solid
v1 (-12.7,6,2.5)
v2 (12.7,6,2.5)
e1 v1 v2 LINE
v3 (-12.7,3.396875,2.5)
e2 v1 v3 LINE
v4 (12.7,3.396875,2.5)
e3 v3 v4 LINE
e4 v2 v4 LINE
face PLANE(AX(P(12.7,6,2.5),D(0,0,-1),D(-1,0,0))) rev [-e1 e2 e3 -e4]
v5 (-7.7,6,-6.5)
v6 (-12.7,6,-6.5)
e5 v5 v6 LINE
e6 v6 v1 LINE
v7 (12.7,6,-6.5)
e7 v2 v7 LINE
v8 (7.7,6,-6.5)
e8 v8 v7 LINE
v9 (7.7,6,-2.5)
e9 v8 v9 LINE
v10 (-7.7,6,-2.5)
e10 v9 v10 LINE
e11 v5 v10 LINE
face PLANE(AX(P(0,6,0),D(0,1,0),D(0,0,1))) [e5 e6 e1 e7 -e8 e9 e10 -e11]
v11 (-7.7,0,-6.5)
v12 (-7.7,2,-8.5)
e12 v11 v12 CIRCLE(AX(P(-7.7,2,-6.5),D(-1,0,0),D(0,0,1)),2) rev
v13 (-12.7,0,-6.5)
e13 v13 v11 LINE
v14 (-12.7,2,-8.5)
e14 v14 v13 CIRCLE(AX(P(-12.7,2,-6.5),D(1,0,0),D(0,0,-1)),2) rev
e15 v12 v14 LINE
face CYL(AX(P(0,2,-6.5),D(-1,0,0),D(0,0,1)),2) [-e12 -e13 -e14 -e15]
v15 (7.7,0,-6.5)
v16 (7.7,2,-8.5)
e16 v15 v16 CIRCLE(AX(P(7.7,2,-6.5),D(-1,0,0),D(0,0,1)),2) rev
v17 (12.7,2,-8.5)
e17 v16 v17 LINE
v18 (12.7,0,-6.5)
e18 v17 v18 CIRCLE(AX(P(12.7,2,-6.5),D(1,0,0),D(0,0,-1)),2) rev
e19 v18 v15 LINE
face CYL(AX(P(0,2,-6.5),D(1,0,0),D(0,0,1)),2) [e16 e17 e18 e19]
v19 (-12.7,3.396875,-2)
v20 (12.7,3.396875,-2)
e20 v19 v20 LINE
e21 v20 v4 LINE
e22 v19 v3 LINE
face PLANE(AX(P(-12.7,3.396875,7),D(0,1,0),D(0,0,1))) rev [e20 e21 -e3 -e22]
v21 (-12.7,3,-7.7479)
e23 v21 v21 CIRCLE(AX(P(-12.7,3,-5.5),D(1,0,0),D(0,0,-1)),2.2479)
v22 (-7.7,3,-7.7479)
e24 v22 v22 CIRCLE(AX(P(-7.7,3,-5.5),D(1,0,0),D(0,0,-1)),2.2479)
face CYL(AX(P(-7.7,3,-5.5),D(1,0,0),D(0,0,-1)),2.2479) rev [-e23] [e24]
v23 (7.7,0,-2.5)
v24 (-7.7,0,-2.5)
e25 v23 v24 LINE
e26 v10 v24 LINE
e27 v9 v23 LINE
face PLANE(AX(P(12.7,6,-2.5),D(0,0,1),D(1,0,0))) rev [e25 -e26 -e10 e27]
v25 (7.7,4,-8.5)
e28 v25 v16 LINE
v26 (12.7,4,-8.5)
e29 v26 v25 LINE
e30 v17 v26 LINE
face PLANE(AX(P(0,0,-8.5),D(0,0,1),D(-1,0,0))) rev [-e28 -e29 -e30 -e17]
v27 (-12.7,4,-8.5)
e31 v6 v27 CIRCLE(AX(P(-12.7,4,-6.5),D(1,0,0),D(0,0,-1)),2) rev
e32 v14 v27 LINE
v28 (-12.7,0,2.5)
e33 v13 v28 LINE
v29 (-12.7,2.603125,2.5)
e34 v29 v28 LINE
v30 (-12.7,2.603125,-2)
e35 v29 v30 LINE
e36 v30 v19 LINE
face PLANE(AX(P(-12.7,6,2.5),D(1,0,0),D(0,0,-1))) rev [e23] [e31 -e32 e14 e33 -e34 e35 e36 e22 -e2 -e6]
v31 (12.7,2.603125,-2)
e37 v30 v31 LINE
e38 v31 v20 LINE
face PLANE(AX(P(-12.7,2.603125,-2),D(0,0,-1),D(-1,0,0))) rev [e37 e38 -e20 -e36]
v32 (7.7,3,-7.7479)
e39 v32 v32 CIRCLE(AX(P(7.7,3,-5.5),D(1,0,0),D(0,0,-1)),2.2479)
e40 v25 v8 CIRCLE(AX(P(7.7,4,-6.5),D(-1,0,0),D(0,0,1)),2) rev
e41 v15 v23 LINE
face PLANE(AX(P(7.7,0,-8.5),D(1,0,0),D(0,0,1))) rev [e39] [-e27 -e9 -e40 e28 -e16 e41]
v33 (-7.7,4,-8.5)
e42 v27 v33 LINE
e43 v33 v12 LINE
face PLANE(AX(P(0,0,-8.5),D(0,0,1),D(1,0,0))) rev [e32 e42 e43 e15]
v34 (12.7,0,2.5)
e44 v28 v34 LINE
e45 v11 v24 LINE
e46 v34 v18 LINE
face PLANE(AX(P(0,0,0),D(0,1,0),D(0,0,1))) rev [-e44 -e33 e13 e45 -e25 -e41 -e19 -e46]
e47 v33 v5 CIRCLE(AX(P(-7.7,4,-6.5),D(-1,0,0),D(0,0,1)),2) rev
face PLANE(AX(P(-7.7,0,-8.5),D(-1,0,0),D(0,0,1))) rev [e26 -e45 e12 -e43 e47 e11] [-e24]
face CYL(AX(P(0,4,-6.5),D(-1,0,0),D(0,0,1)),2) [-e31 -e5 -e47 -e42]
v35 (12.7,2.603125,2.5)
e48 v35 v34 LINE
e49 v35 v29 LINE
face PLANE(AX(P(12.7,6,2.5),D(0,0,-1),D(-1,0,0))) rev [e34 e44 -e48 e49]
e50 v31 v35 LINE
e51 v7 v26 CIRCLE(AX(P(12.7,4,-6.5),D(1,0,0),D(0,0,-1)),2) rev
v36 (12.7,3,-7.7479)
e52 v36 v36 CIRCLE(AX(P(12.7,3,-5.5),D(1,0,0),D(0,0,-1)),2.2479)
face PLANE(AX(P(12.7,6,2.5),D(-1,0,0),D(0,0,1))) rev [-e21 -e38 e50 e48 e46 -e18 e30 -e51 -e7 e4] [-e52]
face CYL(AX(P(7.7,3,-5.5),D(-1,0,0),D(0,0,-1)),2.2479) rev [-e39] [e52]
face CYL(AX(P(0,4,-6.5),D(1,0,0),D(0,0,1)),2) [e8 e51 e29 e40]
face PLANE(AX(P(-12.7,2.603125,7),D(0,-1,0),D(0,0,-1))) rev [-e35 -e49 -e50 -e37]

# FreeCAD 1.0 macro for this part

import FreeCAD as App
import Part
import Sketcher

V = App.Vector
Q = App.Units.Quantity


def edges_at(feature, points):
    """Names of the edges that pass closest to the given points."""
    edges = feature.Shape.Edges
    near = lambda p: min(range(len(edges)), key=lambda i: edges[i].distToShape(Part.Vertex(*p))[0])
    return sorted({f"Edge{near(p) + 1}" for p in points})

doc = App.newDocument("Part")
body = doc.addObject("PartDesign::Body", "Body")

# Sketch on XZ plane
sketch1 = body.newObject("Sketcher::SketchObject", "Sketch")
sketch1.AttachmentSupport = (doc.getObject("XZ_Plane"), [""])
sketch1.MapMode = "FlatFace"
sketch1.addGeometry([
    Part.LineSegment(V(-13, -2, 0), V(-13, 2, 0)),
    Part.LineSegment(V(-13, 2, 0), V(13, 2, 0)),
    Part.LineSegment(V(13, 2, 0), V(13, -2, 0)),
    Part.LineSegment(V(13, -2, 0), V(-13, -2, 0)),
], False)
sketch1.addConstraint([
    Sketcher.Constraint("Coincident", 0, 2, 1, 1),
    Sketcher.Constraint("Coincident", 1, 2, 2, 1),
    Sketcher.Constraint("Coincident", 2, 2, 3, 1),
    Sketcher.Constraint("Coincident", 3, 2, 0, 1),
    Sketcher.Constraint("Vertical", 0),
    Sketcher.Constraint("Horizontal", 1),
    Sketcher.Constraint("Vertical", 2),
    Sketcher.Constraint("Horizontal", 3),
    Sketcher.Constraint("Symmetric", 0, 2, 2, 2, -1, 1),
    Sketcher.Constraint("DistanceY", 0, 1, 0, 2, Q("5 mm")),
    Sketcher.Constraint("DistanceX", 1, 1, 1, 2, Q("25.4 mm")),
])
pad1 = body.newObject("PartDesign::Pad", "Pad")
pad1.Profile = sketch1
pad1.Length = 6
pad1.Reversed = True

# Sketch on YZ plane
sketch2 = body.newObject("Sketcher::SketchObject", "Sketch001")
sketch2.AttachmentSupport = (doc.getObject("YZ_Plane"), [""])
sketch2.MapMode = "FlatFace"
sketch2.AttachmentOffset = App.Placement(V(0, 0, 12.7), App.Rotation())
sketch2.addGeometry([
    Part.LineSegment(V(3.4, 7, 0), V(2.6, 7, 0)),
    Part.LineSegment(V(2.6, 7, 0), V(2.6, -2, 0)),
    Part.LineSegment(V(2.6, -2, 0), V(3.4, -2, 0)),
    Part.LineSegment(V(3.4, -2, 0), V(3.4, 7, 0)),
], False)
sketch2.addConstraint([
    Sketcher.Constraint("Coincident", 0, 2, 1, 1),
    Sketcher.Constraint("Coincident", 1, 2, 2, 1),
    Sketcher.Constraint("Coincident", 2, 2, 3, 1),
    Sketcher.Constraint("Coincident", 3, 2, 0, 1),
    Sketcher.Constraint("Horizontal", 0),
    Sketcher.Constraint("Vertical", 1),
    Sketcher.Constraint("Horizontal", 2),
    Sketcher.Constraint("Vertical", 3),
    Sketcher.Constraint("DistanceY", 1, 2, 1, 1, Q("9 mm")),
    Sketcher.Constraint("DistanceY", -1, 1, 0, 2, Q("7 mm")),
    Sketcher.Constraint("DistanceX", 0, 2, 0, 1, Q("0.79375 mm")),
    Sketcher.Constraint("DistanceX", -1, 1, 0, 2, Q("2.603125 mm")),
])
pocket1 = body.newObject("PartDesign::Pocket", "Pocket")
pocket1.Profile = sketch2
pocket1.Type = "ThroughAll"

# Sketch on XY plane
sketch3 = body.newObject("Sketcher::SketchObject", "Sketch002")
sketch3.AttachmentSupport = (doc.getObject("XY_Plane"), [""])
sketch3.MapMode = "FlatFace"
sketch3.AttachmentOffset = App.Placement(V(0, 0, -2.5), App.Rotation())
sketch3.addGeometry([
    Part.LineSegment(V(-7.7, 6, 0), V(-7.7, 0, 0)),
    Part.LineSegment(V(-7.7, 0, 0), V(-12.7, 0, 0)),
    Part.LineSegment(V(-12.7, 0, 0), V(-12.7, 6, 0)),
    Part.LineSegment(V(-12.7, 6, 0), V(-7.7, 6, 0)),
], False)
sketch3.addConstraint([
    Sketcher.Constraint("Coincident", 0, 2, 1, 1),
    Sketcher.Constraint("Coincident", 1, 2, 2, 1),
    Sketcher.Constraint("Coincident", 2, 2, 3, 1),
    Sketcher.Constraint("Coincident", 3, 2, 0, 1),
    Sketcher.Constraint("Vertical", 0),
    Sketcher.Constraint("Horizontal", 1),
    Sketcher.Constraint("Vertical", 2),
    Sketcher.Constraint("Horizontal", 3),
    Sketcher.Constraint("PointOnObject", 0, 2, -1),
    Sketcher.Constraint("DistanceX", 1, 2, 1, 1, Q("5 mm")),
    Sketcher.Constraint("DistanceY", 0, 2, 0, 1, Q("6 mm")),
    Sketcher.Constraint("DistanceX", 0, 2, -1, 1, Q("7.7 mm")),
])
pad2 = body.newObject("PartDesign::Pad", "Pad001")
pad2.Profile = sketch3
pad2.Length = 6
pad2.Reversed = True

# Sketch on YZ plane
sketch4 = body.newObject("Sketcher::SketchObject", "Sketch003")
sketch4.AttachmentSupport = (doc.getObject("YZ_Plane"), [""])
sketch4.MapMode = "FlatFace"
sketch4.AttachmentOffset = App.Placement(V(0, 0, -7.7), App.Rotation())
sketch4.addGeometry(Part.Circle(V(3, -5.5, 0), V(0, 0, 1), 2.2), False)
sketch4.addConstraint([
    Sketcher.Constraint("DistanceX", -1, 1, 0, 3, Q("3 mm")),
    Sketcher.Constraint("Diameter", 0, Q("4.4958 mm")),
    Sketcher.Constraint("DistanceY", 0, 3, -1, 1, Q("5.5 mm")),
])
doc.recompute()
hole = body.newObject("PartDesign::Hole", "Hole")
hole.Profile = sketch4
hole.ThreadType = "None"
hole.Diameter = 4.4958
hole.DepthType = "ThroughAll"
doc.recompute()

fillet = body.newObject("PartDesign::Fillet", "Fillet")
fillet.Base = (hole, edges_at(hole, [(-10.2, 6, -8.5), (-10.2, 0, -8.5)]))
fillet.Radius = 2
body2 = doc.addObject("PartDesign::Body", "Body001")
doc.recompute()

body2.BaseFeature = body
doc.recompute()

mirroring = doc.addObject("Part::Mirroring", "Mirroring")
mirroring.Source = body
mirroring.Base = V(0, 0, 0)
mirroring.Normal = V(1, 0, 0)
body3 = doc.addObject("PartDesign::Body", "Body002")
body3.BaseFeature = mirroring
boolean = body2.newObject("PartDesign::Boolean", "Boolean")
boolean.Type = "Fuse"
boolean.addObjects([body3])
doc.recompute()
mirroring.Visibility = False

doc.recompute()
